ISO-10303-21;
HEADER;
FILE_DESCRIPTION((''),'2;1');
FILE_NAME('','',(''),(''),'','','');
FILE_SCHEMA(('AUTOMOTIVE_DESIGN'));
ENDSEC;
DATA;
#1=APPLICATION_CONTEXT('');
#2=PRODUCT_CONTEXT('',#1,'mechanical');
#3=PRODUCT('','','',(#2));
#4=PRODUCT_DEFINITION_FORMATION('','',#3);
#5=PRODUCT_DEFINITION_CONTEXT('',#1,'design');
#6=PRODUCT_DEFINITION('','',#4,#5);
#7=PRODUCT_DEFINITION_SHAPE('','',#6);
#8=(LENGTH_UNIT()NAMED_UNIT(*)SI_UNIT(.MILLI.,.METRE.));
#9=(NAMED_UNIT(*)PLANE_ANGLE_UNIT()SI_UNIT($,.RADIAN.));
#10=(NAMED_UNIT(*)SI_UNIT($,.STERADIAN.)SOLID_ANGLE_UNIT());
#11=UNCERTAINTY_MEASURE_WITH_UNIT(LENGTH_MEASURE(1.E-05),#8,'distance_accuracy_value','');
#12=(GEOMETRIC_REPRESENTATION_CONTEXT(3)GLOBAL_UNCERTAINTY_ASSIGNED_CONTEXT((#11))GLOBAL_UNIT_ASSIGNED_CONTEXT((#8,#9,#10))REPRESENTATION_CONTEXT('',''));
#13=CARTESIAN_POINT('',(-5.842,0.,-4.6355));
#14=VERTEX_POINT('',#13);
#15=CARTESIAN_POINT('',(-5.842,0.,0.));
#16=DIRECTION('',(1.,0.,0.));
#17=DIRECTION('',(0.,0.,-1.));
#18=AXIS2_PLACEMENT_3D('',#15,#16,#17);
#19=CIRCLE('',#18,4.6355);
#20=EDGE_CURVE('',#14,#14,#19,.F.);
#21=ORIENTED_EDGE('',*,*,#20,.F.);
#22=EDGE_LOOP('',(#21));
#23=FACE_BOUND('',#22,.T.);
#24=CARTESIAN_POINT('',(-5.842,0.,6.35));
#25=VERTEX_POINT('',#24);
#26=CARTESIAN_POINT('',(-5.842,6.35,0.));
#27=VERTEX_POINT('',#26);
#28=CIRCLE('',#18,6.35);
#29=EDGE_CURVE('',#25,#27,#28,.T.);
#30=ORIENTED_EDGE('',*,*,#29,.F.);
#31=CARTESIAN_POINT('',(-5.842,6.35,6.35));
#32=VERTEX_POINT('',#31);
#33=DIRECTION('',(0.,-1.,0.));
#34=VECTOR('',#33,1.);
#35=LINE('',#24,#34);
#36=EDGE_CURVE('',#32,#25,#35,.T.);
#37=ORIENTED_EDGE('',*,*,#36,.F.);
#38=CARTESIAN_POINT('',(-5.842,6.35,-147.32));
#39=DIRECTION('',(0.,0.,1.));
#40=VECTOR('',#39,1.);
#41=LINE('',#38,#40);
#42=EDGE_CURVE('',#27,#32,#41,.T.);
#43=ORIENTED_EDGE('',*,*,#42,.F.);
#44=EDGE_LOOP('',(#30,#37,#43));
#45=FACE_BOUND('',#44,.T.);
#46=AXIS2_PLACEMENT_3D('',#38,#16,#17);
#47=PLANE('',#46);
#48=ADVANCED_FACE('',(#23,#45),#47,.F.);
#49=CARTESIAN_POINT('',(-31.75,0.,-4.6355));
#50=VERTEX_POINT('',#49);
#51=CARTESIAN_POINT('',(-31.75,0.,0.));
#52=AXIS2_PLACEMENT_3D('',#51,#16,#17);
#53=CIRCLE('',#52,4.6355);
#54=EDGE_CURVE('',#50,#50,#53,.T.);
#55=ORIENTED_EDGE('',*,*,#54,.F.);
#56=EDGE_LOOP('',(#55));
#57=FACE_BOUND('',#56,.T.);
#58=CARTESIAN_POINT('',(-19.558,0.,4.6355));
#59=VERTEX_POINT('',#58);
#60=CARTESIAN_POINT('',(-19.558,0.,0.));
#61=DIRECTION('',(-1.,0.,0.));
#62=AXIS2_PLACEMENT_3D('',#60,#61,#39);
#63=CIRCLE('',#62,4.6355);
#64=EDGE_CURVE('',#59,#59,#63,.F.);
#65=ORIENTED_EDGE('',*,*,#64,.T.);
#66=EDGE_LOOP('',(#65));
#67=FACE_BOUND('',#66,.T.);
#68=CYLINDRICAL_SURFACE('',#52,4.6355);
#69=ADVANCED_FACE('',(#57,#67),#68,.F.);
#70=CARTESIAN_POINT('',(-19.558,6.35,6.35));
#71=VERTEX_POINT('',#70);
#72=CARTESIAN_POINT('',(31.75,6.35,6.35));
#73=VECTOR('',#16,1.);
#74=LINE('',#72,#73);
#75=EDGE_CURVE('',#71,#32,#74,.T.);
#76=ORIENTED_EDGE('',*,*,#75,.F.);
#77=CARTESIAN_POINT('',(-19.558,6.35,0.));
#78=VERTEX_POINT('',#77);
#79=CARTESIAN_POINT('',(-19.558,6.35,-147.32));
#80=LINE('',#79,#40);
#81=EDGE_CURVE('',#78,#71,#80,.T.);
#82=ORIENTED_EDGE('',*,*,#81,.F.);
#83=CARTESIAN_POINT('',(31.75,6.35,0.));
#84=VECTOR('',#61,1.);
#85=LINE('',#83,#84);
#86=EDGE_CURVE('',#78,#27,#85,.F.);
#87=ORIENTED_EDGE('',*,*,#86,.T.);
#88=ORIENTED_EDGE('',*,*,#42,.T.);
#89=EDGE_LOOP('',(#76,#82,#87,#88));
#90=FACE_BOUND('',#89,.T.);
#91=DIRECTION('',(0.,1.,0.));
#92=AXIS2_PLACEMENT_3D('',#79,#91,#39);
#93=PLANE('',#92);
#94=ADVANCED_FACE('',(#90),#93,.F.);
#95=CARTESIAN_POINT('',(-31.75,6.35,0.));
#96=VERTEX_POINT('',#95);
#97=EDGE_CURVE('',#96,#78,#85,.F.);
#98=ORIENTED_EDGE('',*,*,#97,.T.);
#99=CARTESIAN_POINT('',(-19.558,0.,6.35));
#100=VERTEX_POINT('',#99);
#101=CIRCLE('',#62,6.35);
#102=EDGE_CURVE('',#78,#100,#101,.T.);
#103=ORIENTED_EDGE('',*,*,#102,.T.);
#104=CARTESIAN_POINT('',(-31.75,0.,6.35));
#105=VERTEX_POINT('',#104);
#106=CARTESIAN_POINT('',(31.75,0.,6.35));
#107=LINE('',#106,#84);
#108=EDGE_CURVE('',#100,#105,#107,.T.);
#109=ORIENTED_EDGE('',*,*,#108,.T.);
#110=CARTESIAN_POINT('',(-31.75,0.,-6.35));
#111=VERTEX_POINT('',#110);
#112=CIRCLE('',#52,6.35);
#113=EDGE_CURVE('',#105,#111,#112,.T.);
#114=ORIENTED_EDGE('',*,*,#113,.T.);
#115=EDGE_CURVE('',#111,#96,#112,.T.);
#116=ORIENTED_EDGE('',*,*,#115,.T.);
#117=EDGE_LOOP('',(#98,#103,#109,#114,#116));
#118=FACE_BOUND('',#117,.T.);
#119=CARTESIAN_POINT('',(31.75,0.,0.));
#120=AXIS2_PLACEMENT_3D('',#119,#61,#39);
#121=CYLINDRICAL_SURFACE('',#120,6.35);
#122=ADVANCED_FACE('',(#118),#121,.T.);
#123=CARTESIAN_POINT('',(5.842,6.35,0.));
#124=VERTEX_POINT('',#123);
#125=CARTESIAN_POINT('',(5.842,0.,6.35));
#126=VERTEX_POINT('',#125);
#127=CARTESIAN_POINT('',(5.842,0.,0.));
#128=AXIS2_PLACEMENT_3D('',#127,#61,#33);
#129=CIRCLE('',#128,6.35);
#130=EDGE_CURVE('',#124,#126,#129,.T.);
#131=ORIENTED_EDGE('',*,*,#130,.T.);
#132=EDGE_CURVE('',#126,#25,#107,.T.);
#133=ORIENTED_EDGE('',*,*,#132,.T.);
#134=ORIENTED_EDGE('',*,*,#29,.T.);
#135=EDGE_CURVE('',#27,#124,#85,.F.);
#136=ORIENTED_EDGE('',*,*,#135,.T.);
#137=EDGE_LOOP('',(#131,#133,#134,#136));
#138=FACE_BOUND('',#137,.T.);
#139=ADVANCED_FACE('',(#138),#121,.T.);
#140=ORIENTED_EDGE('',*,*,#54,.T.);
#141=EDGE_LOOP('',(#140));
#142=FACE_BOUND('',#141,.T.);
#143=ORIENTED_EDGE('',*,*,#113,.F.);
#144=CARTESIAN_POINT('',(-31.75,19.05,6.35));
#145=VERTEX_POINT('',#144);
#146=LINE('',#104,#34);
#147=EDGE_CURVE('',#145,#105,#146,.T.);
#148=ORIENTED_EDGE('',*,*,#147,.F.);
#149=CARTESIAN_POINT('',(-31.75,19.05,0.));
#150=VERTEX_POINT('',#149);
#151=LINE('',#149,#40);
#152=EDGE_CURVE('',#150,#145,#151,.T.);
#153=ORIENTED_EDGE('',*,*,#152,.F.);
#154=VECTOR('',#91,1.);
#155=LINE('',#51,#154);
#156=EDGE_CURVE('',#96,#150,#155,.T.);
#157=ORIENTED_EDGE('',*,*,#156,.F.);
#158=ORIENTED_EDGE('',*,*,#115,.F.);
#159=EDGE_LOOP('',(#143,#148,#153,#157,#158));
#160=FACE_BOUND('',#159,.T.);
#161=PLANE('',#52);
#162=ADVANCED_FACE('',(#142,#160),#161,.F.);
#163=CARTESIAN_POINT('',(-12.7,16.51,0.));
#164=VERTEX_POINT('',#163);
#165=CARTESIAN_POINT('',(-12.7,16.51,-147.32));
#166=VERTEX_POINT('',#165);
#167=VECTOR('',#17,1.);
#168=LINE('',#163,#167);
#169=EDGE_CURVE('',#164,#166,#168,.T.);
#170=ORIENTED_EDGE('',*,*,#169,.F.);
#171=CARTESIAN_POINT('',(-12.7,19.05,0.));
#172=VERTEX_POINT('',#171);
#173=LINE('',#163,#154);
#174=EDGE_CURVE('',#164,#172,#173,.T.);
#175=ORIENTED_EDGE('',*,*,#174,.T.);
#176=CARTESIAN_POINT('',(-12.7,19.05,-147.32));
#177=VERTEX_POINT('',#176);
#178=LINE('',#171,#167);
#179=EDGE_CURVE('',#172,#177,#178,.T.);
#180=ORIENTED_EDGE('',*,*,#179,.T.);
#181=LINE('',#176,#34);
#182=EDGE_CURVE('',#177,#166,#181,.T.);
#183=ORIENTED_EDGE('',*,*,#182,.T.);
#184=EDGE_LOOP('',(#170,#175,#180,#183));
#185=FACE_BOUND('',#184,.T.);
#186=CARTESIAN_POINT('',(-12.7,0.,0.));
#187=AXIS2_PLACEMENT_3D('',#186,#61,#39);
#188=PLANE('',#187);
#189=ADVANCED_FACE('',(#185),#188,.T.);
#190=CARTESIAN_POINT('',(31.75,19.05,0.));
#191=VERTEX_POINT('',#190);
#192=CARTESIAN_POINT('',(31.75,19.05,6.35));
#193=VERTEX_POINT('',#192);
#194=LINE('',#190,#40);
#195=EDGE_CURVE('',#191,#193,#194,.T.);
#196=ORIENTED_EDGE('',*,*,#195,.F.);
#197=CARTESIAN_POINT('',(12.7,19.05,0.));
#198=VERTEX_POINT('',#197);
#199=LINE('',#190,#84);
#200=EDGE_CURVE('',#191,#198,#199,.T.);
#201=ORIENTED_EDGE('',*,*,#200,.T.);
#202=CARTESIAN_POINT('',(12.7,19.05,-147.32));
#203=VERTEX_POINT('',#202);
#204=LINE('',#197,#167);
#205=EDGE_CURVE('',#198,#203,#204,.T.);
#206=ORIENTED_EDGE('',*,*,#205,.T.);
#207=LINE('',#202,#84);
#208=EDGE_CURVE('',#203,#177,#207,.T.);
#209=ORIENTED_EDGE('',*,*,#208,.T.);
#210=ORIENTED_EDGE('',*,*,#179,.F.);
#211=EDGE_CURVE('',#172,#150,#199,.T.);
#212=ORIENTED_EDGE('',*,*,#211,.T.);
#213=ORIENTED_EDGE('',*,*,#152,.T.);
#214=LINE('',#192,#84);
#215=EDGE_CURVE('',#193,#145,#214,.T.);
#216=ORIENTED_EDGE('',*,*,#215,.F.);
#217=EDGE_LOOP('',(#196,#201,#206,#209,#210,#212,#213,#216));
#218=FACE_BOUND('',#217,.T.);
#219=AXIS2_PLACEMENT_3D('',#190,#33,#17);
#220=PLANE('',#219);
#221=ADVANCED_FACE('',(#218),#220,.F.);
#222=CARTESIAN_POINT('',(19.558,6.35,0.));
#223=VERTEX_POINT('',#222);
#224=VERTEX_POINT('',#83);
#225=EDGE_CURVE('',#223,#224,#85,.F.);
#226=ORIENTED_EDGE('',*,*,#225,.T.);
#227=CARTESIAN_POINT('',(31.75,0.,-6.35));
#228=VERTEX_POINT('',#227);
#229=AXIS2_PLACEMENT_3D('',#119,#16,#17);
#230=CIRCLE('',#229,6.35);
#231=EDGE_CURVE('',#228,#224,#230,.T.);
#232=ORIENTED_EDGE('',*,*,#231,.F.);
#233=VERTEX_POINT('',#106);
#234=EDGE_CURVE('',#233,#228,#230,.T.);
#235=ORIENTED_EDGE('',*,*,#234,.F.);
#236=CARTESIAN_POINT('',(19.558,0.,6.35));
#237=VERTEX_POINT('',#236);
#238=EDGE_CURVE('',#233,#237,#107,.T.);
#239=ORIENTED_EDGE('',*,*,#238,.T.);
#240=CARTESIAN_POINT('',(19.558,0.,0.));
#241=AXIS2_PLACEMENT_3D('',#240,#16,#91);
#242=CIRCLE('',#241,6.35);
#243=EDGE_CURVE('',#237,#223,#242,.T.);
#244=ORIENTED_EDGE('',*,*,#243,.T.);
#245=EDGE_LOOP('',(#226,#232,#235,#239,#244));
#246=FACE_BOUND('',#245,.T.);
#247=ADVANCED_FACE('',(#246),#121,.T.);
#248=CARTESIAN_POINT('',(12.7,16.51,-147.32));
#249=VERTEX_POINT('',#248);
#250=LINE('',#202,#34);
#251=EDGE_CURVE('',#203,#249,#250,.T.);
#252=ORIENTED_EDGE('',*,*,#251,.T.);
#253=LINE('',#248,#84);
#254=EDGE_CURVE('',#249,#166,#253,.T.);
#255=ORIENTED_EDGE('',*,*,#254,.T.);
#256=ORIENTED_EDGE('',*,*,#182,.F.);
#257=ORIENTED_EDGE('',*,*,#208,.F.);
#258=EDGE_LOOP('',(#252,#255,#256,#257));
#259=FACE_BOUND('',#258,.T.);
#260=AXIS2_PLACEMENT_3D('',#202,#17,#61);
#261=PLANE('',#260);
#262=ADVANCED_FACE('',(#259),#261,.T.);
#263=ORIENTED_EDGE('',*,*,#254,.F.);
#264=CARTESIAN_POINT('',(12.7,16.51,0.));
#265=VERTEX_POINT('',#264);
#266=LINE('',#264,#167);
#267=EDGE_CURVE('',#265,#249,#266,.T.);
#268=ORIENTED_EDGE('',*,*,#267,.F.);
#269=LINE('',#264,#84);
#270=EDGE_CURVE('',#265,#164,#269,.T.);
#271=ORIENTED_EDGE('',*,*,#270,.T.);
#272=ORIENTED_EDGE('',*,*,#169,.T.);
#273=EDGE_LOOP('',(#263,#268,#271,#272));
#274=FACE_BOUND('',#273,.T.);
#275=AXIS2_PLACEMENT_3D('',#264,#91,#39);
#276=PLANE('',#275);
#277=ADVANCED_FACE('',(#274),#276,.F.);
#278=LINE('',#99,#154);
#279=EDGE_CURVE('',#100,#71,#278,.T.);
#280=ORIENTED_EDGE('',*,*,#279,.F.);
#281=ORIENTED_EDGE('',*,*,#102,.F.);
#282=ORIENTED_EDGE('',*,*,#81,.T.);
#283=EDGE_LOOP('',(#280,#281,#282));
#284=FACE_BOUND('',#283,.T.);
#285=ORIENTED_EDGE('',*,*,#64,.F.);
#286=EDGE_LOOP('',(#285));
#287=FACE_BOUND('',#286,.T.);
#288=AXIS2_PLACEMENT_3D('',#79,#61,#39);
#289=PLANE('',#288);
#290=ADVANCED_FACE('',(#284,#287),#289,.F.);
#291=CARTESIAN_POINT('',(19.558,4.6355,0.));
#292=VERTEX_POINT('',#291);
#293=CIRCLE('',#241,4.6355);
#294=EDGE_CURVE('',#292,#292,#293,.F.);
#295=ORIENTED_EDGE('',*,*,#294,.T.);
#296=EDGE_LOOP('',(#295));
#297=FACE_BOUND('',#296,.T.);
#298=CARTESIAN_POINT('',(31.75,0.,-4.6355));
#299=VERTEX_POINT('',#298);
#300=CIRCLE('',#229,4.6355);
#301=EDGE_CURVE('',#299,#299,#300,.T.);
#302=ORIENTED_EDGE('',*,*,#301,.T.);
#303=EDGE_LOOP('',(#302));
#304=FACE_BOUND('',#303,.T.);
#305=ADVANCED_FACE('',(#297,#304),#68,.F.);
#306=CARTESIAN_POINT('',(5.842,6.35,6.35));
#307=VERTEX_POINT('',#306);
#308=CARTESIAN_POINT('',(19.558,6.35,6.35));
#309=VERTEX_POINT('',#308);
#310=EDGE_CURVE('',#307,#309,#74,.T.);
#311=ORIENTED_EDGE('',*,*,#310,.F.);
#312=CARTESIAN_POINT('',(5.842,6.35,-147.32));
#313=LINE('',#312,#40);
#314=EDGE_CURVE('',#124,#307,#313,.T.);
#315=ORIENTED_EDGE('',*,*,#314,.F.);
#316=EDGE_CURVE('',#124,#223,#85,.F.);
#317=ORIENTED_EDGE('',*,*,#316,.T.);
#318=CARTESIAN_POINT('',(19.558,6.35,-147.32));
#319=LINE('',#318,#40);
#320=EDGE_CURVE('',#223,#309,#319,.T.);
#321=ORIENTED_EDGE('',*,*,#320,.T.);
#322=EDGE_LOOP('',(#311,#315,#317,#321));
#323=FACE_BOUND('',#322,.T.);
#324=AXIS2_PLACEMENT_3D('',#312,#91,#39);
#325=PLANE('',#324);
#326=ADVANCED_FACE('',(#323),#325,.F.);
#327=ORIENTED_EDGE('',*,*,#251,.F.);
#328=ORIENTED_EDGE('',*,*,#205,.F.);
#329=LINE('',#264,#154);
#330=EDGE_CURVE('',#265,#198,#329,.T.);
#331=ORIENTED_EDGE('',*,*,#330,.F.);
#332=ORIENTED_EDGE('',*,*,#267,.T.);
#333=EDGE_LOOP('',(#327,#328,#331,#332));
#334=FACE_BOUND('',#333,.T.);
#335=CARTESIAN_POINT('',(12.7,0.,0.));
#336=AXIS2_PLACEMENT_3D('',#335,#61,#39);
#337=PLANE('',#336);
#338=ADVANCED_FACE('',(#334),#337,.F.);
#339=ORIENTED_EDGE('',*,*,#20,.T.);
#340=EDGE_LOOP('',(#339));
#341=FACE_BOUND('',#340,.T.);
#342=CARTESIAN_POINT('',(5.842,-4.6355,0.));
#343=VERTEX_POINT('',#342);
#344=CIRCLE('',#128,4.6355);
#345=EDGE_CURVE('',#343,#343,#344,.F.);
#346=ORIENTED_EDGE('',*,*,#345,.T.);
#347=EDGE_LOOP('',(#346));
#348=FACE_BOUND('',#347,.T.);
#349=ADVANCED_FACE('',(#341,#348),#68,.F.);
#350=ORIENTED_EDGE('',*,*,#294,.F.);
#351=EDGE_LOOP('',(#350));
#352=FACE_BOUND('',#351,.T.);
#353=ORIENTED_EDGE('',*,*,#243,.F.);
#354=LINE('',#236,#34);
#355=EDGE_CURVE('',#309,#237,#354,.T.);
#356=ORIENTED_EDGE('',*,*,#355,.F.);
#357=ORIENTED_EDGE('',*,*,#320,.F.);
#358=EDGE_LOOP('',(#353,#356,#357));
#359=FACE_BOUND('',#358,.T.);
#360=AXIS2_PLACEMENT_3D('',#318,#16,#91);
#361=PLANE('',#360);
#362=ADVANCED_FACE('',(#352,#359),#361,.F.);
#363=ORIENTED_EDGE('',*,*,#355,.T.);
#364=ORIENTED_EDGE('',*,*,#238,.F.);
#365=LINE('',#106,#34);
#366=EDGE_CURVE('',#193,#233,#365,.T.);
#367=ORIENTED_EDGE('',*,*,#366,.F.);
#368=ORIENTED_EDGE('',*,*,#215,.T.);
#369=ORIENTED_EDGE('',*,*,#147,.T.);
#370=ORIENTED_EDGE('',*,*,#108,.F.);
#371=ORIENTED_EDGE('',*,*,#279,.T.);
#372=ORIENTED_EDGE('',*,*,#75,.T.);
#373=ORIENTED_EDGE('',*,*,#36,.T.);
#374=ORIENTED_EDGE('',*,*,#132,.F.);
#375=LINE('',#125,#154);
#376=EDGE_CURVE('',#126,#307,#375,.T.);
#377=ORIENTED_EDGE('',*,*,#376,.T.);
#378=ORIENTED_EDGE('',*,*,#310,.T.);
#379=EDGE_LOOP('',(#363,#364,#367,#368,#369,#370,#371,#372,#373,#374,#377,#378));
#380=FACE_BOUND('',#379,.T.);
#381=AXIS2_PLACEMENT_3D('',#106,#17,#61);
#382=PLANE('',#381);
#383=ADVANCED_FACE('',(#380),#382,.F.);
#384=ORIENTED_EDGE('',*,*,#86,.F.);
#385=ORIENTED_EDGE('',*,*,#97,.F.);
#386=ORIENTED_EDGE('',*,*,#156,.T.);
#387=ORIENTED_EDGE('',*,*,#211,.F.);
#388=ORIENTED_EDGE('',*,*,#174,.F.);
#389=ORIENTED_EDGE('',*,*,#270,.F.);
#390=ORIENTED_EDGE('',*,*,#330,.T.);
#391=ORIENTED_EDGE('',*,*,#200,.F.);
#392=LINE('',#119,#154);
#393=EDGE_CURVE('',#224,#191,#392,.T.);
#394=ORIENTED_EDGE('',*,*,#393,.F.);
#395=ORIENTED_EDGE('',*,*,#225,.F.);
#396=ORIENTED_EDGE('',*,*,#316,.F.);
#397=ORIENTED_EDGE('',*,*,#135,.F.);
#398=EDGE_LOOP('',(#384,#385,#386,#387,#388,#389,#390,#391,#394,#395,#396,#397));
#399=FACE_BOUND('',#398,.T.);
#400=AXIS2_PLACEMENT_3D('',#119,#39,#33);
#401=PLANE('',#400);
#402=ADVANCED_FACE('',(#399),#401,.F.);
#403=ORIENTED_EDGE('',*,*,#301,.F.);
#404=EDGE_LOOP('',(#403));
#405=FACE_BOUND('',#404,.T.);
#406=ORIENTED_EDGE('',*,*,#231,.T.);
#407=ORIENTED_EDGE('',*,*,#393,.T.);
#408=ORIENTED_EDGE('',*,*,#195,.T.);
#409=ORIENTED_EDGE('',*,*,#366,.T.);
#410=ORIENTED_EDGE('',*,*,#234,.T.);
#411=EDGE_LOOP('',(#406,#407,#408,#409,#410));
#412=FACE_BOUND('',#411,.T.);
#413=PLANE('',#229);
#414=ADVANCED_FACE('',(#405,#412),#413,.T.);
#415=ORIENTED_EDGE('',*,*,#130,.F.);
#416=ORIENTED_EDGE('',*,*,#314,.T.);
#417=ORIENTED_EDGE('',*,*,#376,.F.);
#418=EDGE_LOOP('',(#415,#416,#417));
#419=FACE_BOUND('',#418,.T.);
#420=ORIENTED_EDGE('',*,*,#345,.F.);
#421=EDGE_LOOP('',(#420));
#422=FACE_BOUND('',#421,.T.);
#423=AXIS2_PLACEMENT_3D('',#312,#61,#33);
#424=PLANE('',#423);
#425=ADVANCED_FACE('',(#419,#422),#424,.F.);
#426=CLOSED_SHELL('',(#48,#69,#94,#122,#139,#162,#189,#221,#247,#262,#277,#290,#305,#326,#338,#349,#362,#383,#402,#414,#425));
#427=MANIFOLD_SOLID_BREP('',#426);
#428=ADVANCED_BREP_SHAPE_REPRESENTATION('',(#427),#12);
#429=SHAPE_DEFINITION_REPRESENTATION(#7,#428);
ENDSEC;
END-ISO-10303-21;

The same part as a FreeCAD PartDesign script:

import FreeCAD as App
import Part
import Sketcher
Q = App.Units.Quantity


def add_polygon(sketch, points):
    """Adds a closed chain of lines whose ends are joined by coincident constraints."""
    first, n = sketch.GeometryCount, len(points)
    for a, b in zip(points, points[1:] + points[:1]):
        sketch.addGeometry(Part.LineSegment(App.Vector(*a, 0), App.Vector(*b, 0)), False)
    for i in range(n):
        sketch.addConstraint(Sketcher.Constraint("Coincident", first + i, 2, first + (i + 1) % n, 1))

doc = App.newDocument("Part")
params = doc.addObject("Spreadsheet::Sheet", "Params")
for row, (alias, value) in enumerate([
    ("sketch1_width", "0.75 in"),
    ("sketch1_height", "0.25 in"),
    ("pad1_length", "2.5 in"),
    ("sketch2_width", "0.1 in"),
    ("sketch2_height", "5.8 in"),
    ("pad2_length", "1 in"),
    ("sketch3_diameter", "0.5 in"),
    ("sketch4_width", "2.5 in"),
    ("sketch5_diameter", "0.365 in"),
    ("sketch6_height", "0.5 in"),
    ("sketch6_width", "0.54 in"),
], start=1):
    params.set(f"A{row}", alias)
    params.set(f"B{row}", "=" + value)
    params.setAlias(f"B{row}", alias)

body = doc.addObject("PartDesign::Body", "Body")

# Sketch on YZ plane
sketch1 = doc.addObject("Sketcher::SketchObject", "Sketch")
body.addObject(sketch1)
sketch1.AttachmentSupport = (doc.YZ_Plane, [""])
sketch1.MapMode = "FlatFace"
add_polygon(sketch1, [(19, 6), (0, 6), (0, 0), (19, 0)])  # lines 0-3
sketch1.addConstraint(Sketcher.Constraint("Horizontal", 0))
sketch1.addConstraint(Sketcher.Constraint("Vertical", 1))
sketch1.addConstraint(Sketcher.Constraint("Horizontal", 2))
sketch1.addConstraint(Sketcher.Constraint("Vertical", 3))
sketch1.addConstraint(Sketcher.Constraint("Coincident", 1, 2, -1, 1))
sketch1.addConstraint(Sketcher.Constraint("DistanceX", 0, 2, 0, 1, Q("0.75 in")))
sketch1.addConstraint(Sketcher.Constraint("DistanceY", 1, 2, 1, 1, Q("0.25 in")))
sketch1.setExpression("Constraints[9]", "Params.sketch1_width")
sketch1.setExpression("Constraints[10]", "Params.sketch1_height")
pad1 = doc.addObject("PartDesign::Pad", "Pad")
body.addObject(pad1)
pad1.Profile = sketch1
pad1.setExpression("Length", "Params.pad1_length")
pad1.Midplane = True

# Sketch on YZ plane
sketch2 = doc.addObject("Sketcher::SketchObject", "Sketch001")
body.addObject(sketch2)
sketch2.AttachmentSupport = (doc.YZ_Plane, [""])
sketch2.MapMode = "FlatFace"
add_polygon(sketch2, [(19.1, 0), (16.5, 0), (16.5, -147.3), (19.1, -147.3)])  # lines 0-3
sketch2.addConstraint(Sketcher.Constraint("Horizontal", 0))
sketch2.addConstraint(Sketcher.Constraint("Vertical", 1))
sketch2.addConstraint(Sketcher.Constraint("Horizontal", 2))
sketch2.addConstraint(Sketcher.Constraint("Vertical", 3))
sketch2.addConstraint(Sketcher.Constraint("PointOnObject", 0, 2, -1))
sketch2.addConstraint(Sketcher.Constraint("DistanceX", 0, 2, 0, 1, Q("0.1 in")))
sketch2.addConstraint(Sketcher.Constraint("DistanceY", 1, 2, 1, 1, Q("5.8 in")))
sketch2.addConstraint(Sketcher.Constraint("DistanceX", -1, 1, 0, 2, Q("0.65 in")))
sketch2.setExpression("Constraints[9]", "Params.sketch2_width")
sketch2.setExpression("Constraints[10]", "Params.sketch2_height")
pad2 = doc.addObject("PartDesign::Pad", "Pad001")
body.addObject(pad2)
pad2.Profile = sketch2
pad2.setExpression("Length", "Params.pad2_length")
pad2.Midplane = True

# Sketch on YZ plane
sketch3 = doc.addObject("Sketcher::SketchObject", "Sketch002")
body.addObject(sketch3)
sketch3.AttachmentSupport = (doc.YZ_Plane, [""])
sketch3.MapMode = "FlatFace"
sketch3.AttachmentOffset = App.Placement(App.Vector(0, 0, 1.25 * 25.4), App.Rotation())
sketch3.addGeometry(Part.Circle(App.Vector(0, 0, 0), App.Vector(0, 0, 1), 6), False)
sketch3.addConstraint(Sketcher.Constraint("Coincident", 0, 3, -1, 1))
sketch3.addConstraint(Sketcher.Constraint("Diameter", 0, Q("0.5 in")))
sketch3.setExpression("Constraints[1]", "Params.sketch3_diameter")

# Sketch on XY plane
sketch4 = doc.addObject("Sketcher::SketchObject", "Sketch003")
body.addObject(sketch4)
sketch4.AttachmentSupport = (doc.XY_Plane, [""])
sketch4.MapMode = "FlatFace"
sketch4.addGeometry(Part.LineSegment(App.Vector(32, 0, 0), App.Vector(-32, 0, 0)), False)
sketch4.addConstraint(Sketcher.Constraint("Horizontal", 0))
sketch4.addConstraint(Sketcher.Constraint("Symmetric", 0, 1, 0, 2, -1, 1))
sketch4.addConstraint(Sketcher.Constraint("DistanceX", 0, 2, 0, 1, Q("2.5 in")))
sketch4.setExpression("Constraints[2]", "Params.sketch4_width")
doc.recompute()

additivepipe = doc.addObject("PartDesign::AdditivePipe", "AdditivePipe")
body.addObject(additivepipe)
additivepipe.Profile = sketch3
additivepipe.Spine = (sketch4, ["Edge1"])

# Sketch on YZ plane
sketch5 = doc.addObject("Sketcher::SketchObject", "Sketch004")
body.addObject(sketch5)
sketch5.AttachmentSupport = (doc.YZ_Plane, [""])
sketch5.MapMode = "FlatFace"
sketch5.AttachmentOffset = App.Placement(App.Vector(0, 0, 1.25 * 25.4), App.Rotation())
sketch5.addGeometry(Part.Circle(App.Vector(0, 0, 0), App.Vector(0, 0, 1), 4.6), False)
sketch5.addConstraint(Sketcher.Constraint("Coincident", 0, 3, -1, 1))
sketch5.addConstraint(Sketcher.Constraint("Diameter", 0, Q("0.365 in")))
sketch5.setExpression("Constraints[1]", "Params.sketch5_diameter")
pocket1 = doc.addObject("PartDesign::Pocket", "Pocket")
body.addObject(pocket1)
pocket1.Profile = sketch5
pocket1.Type = "ThroughAll"

# Sketch on XY plane
sketch6 = doc.addObject("Sketcher::SketchObject", "Sketch005")
body.addObject(sketch6)
sketch6.AttachmentSupport = (doc.XY_Plane, [""])
sketch6.MapMode = "FlatFace"
sketch6.AttachmentOffset = App.Placement(App.Vector(0, 0, 0.25 * 25.4), App.Rotation())
add_polygon(sketch6, [(6, 6), (6, -6), (20, -6), (20, 6)])  # lines 0-3
add_polygon(sketch6, [(-20, 6), (-20, -6), (-6, -6), (-6, 6)])  # lines 4-7
sketch6.addConstraint(Sketcher.Constraint("Vertical", 0))
sketch6.addConstraint(Sketcher.Constraint("Horizontal", 1))
sketch6.addConstraint(Sketcher.Constraint("Vertical", 2))
sketch6.addConstraint(Sketcher.Constraint("Horizontal", 3))
sketch6.addConstraint(Sketcher.Constraint("Vertical", 4))
sketch6.addConstraint(Sketcher.Constraint("Horizontal", 5))
sketch6.addConstraint(Sketcher.Constraint("Vertical", 6))
sketch6.addConstraint(Sketcher.Constraint("Horizontal", 7))
sketch6.addConstraint(Sketcher.Constraint("Symmetric", 2, 2, 4, 2, -1, 1))
sketch6.addConstraint(Sketcher.Constraint("Symmetric", 0, 2, 6, 2, -1, 1))
sketch6.addConstraint(Sketcher.Constraint("Horizontal", 1, 2, 4, 2))
sketch6.addConstraint(Sketcher.Constraint("DistanceY", 0, 2, 0, 1, Q("0.5 in")))
sketch6.addConstraint(Sketcher.Constraint("DistanceX", 4, 2, 0, 2, Q("1 in")))
sketch6.addConstraint(Sketcher.Constraint("DistanceX", 1, 1, 1, 2, Q("0.54 in")))
sketch6.setExpression("Constraints[19]", "Params.sketch6_height")
sketch6.setExpression("Constraints[21]", "Params.sketch6_width")
pocket2 = doc.addObject("PartDesign::Pocket", "Pocket001")
body.addObject(pocket2)
pocket2.Profile = sketch6
pocket2.Type = "ThroughAll"
pocket2.Midplane = True

doc.recompute()
